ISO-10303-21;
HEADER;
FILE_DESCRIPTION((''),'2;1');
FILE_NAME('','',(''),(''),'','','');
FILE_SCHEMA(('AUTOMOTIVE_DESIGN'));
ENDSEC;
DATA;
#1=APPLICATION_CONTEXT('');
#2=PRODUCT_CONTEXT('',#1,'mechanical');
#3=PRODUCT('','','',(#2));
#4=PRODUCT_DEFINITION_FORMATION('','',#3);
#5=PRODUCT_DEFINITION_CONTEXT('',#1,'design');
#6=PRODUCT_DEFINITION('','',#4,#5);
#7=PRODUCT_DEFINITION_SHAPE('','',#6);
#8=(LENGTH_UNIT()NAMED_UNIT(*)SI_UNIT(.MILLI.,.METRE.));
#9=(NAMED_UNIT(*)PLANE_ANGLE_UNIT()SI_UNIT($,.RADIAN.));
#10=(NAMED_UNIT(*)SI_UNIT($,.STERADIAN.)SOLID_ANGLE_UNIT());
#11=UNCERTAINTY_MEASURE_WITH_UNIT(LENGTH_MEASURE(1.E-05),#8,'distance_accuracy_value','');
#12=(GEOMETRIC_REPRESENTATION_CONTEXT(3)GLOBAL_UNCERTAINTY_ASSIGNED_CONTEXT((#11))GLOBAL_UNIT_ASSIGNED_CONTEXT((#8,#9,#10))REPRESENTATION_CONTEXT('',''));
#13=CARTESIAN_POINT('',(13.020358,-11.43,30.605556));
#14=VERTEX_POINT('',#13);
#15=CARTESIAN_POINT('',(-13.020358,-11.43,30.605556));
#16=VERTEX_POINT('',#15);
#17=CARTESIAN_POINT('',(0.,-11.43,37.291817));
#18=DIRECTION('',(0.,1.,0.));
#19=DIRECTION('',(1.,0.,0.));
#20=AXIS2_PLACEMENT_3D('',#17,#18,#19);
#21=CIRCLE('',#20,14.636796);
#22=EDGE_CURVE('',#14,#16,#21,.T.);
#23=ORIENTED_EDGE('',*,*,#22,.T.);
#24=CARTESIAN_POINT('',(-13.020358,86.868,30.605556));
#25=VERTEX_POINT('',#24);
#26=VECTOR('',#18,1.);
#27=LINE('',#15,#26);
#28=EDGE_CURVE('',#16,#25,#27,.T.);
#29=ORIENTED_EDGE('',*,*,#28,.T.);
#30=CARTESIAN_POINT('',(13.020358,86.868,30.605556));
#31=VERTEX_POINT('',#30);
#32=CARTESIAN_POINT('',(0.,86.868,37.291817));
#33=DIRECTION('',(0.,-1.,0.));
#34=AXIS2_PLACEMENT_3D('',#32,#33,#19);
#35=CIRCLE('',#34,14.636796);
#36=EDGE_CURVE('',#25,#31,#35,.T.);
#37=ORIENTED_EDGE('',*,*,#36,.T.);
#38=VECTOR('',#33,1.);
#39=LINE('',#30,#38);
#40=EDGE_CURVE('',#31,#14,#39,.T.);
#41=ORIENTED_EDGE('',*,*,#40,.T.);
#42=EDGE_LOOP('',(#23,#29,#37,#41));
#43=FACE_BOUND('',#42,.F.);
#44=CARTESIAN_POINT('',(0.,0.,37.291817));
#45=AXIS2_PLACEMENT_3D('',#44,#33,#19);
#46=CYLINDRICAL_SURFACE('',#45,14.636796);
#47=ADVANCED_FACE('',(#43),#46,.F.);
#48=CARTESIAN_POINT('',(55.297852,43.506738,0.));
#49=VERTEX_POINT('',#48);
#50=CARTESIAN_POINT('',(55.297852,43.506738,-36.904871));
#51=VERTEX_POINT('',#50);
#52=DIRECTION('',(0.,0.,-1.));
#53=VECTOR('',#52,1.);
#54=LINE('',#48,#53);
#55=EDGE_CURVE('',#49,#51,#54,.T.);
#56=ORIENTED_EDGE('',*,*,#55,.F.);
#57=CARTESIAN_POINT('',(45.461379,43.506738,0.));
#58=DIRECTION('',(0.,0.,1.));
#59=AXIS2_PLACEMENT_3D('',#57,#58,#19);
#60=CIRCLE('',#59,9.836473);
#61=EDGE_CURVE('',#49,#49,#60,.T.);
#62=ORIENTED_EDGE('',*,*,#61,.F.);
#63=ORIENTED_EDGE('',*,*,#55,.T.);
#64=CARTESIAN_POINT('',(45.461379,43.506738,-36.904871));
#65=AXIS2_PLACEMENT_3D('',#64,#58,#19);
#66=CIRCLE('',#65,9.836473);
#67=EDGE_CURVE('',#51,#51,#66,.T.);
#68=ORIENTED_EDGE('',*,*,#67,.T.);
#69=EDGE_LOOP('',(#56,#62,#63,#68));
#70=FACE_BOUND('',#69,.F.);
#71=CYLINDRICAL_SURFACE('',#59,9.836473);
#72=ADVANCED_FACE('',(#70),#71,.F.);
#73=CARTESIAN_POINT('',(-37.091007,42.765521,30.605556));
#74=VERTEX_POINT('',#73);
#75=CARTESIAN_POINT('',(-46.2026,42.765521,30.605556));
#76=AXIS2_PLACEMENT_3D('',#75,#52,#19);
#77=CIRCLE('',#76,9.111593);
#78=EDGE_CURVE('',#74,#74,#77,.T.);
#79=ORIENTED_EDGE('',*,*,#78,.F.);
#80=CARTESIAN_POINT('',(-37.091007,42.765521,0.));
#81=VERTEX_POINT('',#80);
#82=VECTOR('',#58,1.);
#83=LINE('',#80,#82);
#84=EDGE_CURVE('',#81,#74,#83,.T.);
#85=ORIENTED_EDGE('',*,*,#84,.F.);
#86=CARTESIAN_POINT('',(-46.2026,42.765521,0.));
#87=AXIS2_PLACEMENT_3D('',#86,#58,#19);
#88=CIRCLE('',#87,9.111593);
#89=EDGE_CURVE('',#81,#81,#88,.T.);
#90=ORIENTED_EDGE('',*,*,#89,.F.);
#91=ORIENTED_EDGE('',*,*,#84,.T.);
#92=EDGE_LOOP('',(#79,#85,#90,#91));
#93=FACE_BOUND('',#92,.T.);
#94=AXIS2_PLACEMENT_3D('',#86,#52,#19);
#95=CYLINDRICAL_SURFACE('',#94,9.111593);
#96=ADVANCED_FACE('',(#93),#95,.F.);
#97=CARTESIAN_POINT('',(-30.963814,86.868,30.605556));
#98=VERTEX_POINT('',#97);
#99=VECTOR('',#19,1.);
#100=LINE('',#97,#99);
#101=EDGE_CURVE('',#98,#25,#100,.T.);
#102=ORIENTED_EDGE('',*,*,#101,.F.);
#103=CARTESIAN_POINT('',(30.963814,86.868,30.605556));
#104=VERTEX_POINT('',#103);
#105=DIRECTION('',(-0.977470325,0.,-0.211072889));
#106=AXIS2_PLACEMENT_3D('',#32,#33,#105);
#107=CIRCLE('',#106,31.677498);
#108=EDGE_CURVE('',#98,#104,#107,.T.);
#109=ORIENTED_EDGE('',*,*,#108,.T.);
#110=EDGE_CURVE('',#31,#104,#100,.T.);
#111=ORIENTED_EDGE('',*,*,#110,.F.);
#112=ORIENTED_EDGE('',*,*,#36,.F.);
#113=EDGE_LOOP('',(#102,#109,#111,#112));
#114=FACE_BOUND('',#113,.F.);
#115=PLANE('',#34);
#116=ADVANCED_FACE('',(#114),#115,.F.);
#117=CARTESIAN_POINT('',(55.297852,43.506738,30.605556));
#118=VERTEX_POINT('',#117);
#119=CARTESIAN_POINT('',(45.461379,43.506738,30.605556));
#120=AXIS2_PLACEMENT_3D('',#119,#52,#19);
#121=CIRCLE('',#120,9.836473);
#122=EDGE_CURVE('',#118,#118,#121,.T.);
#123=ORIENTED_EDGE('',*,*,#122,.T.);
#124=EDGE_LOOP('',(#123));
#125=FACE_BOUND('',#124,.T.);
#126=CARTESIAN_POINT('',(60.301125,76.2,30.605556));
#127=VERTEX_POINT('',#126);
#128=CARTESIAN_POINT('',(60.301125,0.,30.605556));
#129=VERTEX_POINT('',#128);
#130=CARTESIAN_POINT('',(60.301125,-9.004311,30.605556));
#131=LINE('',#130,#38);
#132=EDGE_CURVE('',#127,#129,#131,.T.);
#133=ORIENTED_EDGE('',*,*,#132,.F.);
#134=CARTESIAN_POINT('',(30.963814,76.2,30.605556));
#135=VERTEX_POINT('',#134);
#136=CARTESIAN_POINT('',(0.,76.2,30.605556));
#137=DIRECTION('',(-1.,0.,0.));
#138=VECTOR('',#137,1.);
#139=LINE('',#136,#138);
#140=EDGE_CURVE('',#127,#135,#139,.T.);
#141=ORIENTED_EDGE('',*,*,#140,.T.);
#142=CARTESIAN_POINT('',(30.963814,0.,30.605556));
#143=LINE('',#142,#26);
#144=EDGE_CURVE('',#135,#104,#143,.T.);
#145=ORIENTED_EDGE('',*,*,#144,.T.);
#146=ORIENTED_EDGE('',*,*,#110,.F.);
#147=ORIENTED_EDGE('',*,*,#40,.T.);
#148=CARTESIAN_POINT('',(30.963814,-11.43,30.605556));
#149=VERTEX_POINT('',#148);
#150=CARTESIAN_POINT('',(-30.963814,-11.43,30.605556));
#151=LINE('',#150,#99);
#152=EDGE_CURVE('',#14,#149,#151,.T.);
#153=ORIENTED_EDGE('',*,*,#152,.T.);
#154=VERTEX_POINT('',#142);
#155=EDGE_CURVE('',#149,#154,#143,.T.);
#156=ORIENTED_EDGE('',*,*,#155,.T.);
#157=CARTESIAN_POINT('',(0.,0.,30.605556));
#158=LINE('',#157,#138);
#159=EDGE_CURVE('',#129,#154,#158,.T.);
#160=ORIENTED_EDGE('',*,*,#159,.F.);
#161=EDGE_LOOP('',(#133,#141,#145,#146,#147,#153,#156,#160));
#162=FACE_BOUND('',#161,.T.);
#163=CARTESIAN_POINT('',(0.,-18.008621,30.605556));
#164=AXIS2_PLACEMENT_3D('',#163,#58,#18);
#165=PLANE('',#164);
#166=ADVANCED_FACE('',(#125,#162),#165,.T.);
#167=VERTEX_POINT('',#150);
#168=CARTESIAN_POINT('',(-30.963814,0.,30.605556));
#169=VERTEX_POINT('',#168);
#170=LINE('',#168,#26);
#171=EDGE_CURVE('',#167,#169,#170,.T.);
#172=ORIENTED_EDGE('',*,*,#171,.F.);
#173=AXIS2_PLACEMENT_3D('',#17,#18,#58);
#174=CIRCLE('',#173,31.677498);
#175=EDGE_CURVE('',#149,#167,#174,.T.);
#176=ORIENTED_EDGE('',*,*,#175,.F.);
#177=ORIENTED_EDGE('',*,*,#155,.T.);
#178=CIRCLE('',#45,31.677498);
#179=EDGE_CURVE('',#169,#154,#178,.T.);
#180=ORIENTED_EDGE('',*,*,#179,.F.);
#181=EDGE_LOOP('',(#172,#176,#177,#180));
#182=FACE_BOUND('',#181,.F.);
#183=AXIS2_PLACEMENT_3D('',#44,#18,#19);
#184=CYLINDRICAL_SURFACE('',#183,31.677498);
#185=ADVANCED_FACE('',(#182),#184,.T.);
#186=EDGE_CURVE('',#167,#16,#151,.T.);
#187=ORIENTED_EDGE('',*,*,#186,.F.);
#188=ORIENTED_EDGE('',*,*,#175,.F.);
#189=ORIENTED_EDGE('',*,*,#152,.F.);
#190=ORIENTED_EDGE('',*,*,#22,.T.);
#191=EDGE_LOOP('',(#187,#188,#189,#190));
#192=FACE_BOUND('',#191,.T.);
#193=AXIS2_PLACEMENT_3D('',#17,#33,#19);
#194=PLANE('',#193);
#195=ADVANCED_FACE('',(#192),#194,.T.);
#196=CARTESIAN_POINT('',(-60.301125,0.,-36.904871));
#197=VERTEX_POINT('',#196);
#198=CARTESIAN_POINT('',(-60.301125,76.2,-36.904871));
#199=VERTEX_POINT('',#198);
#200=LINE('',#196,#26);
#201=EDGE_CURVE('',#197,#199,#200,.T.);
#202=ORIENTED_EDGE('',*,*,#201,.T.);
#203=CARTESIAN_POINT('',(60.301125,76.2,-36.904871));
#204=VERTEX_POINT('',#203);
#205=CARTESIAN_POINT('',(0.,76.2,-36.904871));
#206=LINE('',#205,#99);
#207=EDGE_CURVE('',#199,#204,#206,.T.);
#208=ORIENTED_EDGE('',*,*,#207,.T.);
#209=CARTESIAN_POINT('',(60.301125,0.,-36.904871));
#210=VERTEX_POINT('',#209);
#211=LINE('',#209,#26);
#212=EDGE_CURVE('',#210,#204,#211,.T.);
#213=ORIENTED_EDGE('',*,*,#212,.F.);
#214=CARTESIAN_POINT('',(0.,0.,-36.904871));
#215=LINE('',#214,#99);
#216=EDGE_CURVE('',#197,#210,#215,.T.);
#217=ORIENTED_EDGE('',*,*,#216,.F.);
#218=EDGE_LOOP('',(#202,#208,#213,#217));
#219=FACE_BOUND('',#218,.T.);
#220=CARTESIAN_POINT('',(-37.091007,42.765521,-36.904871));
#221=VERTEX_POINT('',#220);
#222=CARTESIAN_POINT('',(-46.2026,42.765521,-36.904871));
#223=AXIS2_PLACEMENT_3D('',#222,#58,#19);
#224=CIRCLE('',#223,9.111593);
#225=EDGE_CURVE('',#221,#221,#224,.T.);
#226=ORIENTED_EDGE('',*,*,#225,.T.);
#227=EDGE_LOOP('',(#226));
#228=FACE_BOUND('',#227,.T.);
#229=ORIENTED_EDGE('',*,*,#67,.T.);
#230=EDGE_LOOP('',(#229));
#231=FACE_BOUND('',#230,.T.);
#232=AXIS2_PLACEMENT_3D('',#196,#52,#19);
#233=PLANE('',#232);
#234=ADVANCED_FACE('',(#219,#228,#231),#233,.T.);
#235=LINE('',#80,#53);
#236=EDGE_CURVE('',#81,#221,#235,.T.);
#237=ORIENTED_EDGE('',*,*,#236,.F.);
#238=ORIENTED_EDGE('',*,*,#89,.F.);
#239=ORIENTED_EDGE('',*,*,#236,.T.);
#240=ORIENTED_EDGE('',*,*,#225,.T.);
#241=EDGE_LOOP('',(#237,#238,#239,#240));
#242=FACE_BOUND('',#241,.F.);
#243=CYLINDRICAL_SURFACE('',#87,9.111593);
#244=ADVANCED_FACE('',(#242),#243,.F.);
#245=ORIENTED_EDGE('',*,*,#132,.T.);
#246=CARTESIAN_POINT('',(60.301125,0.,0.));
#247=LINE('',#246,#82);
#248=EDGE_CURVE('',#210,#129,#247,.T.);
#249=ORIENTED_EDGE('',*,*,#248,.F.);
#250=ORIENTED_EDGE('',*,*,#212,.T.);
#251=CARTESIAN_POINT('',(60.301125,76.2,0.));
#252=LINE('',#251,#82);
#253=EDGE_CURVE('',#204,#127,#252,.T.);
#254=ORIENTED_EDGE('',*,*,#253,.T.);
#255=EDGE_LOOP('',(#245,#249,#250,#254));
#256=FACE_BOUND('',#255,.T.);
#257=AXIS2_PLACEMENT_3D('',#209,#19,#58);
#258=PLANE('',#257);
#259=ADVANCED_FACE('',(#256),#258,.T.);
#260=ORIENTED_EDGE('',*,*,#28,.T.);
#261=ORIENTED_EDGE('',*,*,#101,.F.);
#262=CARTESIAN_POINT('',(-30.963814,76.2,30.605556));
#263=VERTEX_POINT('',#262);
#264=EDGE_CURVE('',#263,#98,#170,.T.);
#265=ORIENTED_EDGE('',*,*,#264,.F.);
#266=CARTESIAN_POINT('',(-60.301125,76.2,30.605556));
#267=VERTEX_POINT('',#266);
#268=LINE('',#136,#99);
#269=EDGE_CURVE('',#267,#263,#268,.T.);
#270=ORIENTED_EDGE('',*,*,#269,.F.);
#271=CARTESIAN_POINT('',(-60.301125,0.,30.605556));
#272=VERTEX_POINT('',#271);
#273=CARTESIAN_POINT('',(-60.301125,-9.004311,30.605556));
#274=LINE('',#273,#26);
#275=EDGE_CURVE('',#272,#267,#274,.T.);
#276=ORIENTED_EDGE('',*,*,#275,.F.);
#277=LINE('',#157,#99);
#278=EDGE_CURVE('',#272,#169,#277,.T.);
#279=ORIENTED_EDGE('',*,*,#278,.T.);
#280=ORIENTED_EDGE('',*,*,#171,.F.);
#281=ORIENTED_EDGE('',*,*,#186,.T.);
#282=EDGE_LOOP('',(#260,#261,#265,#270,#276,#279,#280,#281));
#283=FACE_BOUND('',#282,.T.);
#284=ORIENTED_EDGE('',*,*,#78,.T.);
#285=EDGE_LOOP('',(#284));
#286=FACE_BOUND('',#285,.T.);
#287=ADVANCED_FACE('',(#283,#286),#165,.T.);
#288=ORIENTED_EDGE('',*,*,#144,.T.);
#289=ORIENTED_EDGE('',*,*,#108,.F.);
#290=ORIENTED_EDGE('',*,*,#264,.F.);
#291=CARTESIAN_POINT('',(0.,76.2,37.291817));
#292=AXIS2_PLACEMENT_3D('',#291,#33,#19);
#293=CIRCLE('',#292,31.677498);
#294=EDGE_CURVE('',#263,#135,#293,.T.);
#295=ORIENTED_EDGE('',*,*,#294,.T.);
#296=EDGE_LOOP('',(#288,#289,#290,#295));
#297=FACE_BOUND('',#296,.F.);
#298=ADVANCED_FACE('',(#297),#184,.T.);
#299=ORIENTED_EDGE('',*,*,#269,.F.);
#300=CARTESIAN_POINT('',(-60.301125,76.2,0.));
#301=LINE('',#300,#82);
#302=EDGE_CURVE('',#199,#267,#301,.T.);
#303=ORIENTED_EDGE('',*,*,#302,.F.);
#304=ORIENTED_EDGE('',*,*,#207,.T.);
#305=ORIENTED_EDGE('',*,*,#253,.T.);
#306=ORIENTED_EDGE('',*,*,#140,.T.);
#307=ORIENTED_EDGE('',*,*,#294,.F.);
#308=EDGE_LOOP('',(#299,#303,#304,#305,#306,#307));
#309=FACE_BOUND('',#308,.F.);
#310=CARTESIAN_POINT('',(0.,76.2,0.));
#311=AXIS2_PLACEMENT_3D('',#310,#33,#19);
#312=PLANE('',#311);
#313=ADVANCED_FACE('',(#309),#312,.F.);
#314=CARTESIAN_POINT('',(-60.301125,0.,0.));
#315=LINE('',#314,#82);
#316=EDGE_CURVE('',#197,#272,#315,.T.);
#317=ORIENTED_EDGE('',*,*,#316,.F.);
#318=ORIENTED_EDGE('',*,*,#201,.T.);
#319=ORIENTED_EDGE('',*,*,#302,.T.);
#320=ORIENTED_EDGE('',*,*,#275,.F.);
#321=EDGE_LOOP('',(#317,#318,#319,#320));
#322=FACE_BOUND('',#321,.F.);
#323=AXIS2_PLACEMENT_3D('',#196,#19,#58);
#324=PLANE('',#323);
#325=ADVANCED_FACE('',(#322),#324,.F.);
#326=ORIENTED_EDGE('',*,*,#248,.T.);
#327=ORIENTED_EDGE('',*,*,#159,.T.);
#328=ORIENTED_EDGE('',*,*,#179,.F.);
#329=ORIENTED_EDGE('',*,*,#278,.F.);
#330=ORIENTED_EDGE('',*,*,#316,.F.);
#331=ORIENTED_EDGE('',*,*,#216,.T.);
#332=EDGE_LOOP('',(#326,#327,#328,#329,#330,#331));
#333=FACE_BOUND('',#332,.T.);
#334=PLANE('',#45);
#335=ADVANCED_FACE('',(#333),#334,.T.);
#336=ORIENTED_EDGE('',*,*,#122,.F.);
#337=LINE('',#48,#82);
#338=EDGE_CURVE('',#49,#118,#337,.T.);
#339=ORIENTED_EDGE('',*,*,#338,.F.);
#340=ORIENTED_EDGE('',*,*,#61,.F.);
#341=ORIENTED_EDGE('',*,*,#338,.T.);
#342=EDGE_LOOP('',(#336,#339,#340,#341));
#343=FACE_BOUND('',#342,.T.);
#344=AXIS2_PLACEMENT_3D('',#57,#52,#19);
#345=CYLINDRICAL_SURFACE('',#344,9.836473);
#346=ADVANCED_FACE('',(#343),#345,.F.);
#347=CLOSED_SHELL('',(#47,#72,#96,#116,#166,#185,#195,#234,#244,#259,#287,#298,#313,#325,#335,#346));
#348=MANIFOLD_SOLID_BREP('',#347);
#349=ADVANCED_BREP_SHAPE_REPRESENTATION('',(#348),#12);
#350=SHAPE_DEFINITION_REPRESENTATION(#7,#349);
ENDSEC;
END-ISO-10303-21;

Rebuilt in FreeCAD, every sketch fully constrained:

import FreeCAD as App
import Part
import Sketcher
from FreeCAD import Vector
Q = App.Units.Quantity


def add_polygon(sketch, points):
    """Adds a closed chain of lines whose ends are joined by coincident constraints."""
    first, n = sketch.GeometryCount, len(points)
    for a, b in zip(points, points[1:] + points[:1]):
        sketch.addGeometry(Part.LineSegment(App.Vector(*a, 0), App.Vector(*b, 0)), False)
    for i in range(n):
        sketch.addConstraint(Sketcher.Constraint("Coincident", first + i, 2, first + (i + 1) % n, 1))

doc = App.newDocument("Part")
body = doc.addObject("PartDesign::Body", "Body")

sketch1 = body.newObject("Sketcher::SketchObject", "Sketch")
sketch1.AttachmentSupport = (doc.getObject("XZ_Plane"), [""])
sketch1.MapMode = "FlatFace"
add_polygon(sketch1, [(-60, 37), (-60, -37), (60, -37), (60, 37)])
sketch1.addConstraint([
    Sketcher.Constraint("Vertical", 0),
    Sketcher.Constraint("Horizontal", 1),
    Sketcher.Constraint("Vertical", 2),
    Sketcher.Constraint("Horizontal", 3),
    Sketcher.Constraint("Symmetric", 0, 2, 2, 2, -1, 1),
    Sketcher.Constraint("DistanceX", 1, 1, 1, 2, Q("120.60225 mm")),
    Sketcher.Constraint("DistanceY", 0, 2, 0, 1, Q("73.809743 mm")),
])
pad1 = body.newObject("PartDesign::Pad", "Pad")
pad1.Profile = sketch1
pad1.Length = Q("3 in")
pad1.Reversed = True

sketch2 = body.newObject("Sketcher::SketchObject", "Sketch001")
sketch2.AttachmentSupport = (doc.getObject("XZ_Plane"), [""])
sketch2.MapMode = "FlatFace"
sketch2.addGeometry(Part.Circle(Vector(0, 37, 0), Vector(0, 0, 1), 32), False)
sketch2.addConstraint([
    Sketcher.Constraint("PointOnObject", 0, 3, -2),
    Sketcher.Constraint("Diameter", 0, Q("63.354995 mm")),
    Sketcher.Constraint("DistanceY", -1, 1, 0, 3, Q("37.291817 mm")),
])
pad2 = body.newObject("PartDesign::Pad", "Pad001")
pad2.Profile = sketch2
pad2.Type = "TwoLengths"
pad2.Length = Q("3.42 in")
pad2.Length2 = Q("0.45 in")
pad2.Reversed = True

sketch3 = body.newObject("Sketcher::SketchObject", "Sketch002")
sketch3.AttachmentSupport = (doc.getObject("YZ_Plane"), [""])
sketch3.MapMode = "FlatFace"
add_polygon(sketch3, [(-18, 71), (-18, 31), (101, 31), (101, 71)])
sketch3.addConstraint([
    Sketcher.Constraint("Vertical", 0),
    Sketcher.Constraint("Horizontal", 1),
    Sketcher.Constraint("Vertical", 2),
    Sketcher.Constraint("Horizontal", 3),
    Sketcher.Constraint("DistanceY", 0, 2, 0, 1, Q("40.173141 mm")),
    Sketcher.Constraint("DistanceX", 1, 1, 1, 2, Q("119.147846 mm")),
    Sketcher.Constraint("DistanceX", 0, 2, -1, 1, Q("18.008621 mm")),
    Sketcher.Constraint("DistanceY", -1, 1, 0, 2, Q("30.605556 mm")),
])
pocket1 = body.newObject("PartDesign::Pocket", "Pocket")
pocket1.Profile = sketch3
pocket1.Type = "ThroughAll"
pocket1.Midplane = True

sketch4 = body.newObject("Sketcher::SketchObject", "Sketch003")
sketch4.AttachmentSupport = (doc.getObject("XZ_Plane"), [""])
sketch4.MapMode = "FlatFace"
sketch4.addGeometry(Part.Circle(Vector(0, 37, 0), Vector(0, 0, 1), 15), False)
sketch4.addConstraint([
    Sketcher.Constraint("PointOnObject", 0, 3, -2),
    Sketcher.Constraint("Diameter", 0, Q("29.273592 mm")),
    Sketcher.Constraint("DistanceY", -1, 1, 0, 3, Q("37.291817 mm")),
])
pocket2 = body.newObject("PartDesign::Pocket", "Pocket001")
pocket2.Profile = sketch4
pocket2.Type = "ThroughAll"
pocket2.Midplane = True

sketch5 = body.newObject("Sketcher::SketchObject", "Sketch004")
sketch5.AttachmentSupport = (doc.getObject("XY_Plane"), [""])
sketch5.MapMode = "FlatFace"
sketch5.addGeometry([
    Part.Circle(Vector(-46, 43, 0), Vector(0, 0, 1), 9),
    Part.Circle(Vector(45, 44, 0), Vector(0, 0, 1), 10),
], False)
sketch5.addConstraint([
    Sketcher.Constraint("DistanceX", 0, 3, -1, 1, Q("1.819 in")),
    Sketcher.Constraint("Diameter", 0, Q("18.223185 mm")),
    Sketcher.Constraint("Diameter", 1, Q("19.672946 mm")),
    Sketcher.Constraint("DistanceY", -1, 1, 0, 3, Q("42.765521 mm")),
    Sketcher.Constraint("DistanceX", -1, 1, 1, 3, Q("45.461379 mm")),
    Sketcher.Constraint("DistanceY", -1, 1, 1, 3, Q("43.506738 mm")),
])
pocket3 = body.newObject("PartDesign::Pocket", "Pocket002")
pocket3.Profile = sketch5
pocket3.Type = "ThroughAll"
pocket3.Midplane = True

doc.recompute()
